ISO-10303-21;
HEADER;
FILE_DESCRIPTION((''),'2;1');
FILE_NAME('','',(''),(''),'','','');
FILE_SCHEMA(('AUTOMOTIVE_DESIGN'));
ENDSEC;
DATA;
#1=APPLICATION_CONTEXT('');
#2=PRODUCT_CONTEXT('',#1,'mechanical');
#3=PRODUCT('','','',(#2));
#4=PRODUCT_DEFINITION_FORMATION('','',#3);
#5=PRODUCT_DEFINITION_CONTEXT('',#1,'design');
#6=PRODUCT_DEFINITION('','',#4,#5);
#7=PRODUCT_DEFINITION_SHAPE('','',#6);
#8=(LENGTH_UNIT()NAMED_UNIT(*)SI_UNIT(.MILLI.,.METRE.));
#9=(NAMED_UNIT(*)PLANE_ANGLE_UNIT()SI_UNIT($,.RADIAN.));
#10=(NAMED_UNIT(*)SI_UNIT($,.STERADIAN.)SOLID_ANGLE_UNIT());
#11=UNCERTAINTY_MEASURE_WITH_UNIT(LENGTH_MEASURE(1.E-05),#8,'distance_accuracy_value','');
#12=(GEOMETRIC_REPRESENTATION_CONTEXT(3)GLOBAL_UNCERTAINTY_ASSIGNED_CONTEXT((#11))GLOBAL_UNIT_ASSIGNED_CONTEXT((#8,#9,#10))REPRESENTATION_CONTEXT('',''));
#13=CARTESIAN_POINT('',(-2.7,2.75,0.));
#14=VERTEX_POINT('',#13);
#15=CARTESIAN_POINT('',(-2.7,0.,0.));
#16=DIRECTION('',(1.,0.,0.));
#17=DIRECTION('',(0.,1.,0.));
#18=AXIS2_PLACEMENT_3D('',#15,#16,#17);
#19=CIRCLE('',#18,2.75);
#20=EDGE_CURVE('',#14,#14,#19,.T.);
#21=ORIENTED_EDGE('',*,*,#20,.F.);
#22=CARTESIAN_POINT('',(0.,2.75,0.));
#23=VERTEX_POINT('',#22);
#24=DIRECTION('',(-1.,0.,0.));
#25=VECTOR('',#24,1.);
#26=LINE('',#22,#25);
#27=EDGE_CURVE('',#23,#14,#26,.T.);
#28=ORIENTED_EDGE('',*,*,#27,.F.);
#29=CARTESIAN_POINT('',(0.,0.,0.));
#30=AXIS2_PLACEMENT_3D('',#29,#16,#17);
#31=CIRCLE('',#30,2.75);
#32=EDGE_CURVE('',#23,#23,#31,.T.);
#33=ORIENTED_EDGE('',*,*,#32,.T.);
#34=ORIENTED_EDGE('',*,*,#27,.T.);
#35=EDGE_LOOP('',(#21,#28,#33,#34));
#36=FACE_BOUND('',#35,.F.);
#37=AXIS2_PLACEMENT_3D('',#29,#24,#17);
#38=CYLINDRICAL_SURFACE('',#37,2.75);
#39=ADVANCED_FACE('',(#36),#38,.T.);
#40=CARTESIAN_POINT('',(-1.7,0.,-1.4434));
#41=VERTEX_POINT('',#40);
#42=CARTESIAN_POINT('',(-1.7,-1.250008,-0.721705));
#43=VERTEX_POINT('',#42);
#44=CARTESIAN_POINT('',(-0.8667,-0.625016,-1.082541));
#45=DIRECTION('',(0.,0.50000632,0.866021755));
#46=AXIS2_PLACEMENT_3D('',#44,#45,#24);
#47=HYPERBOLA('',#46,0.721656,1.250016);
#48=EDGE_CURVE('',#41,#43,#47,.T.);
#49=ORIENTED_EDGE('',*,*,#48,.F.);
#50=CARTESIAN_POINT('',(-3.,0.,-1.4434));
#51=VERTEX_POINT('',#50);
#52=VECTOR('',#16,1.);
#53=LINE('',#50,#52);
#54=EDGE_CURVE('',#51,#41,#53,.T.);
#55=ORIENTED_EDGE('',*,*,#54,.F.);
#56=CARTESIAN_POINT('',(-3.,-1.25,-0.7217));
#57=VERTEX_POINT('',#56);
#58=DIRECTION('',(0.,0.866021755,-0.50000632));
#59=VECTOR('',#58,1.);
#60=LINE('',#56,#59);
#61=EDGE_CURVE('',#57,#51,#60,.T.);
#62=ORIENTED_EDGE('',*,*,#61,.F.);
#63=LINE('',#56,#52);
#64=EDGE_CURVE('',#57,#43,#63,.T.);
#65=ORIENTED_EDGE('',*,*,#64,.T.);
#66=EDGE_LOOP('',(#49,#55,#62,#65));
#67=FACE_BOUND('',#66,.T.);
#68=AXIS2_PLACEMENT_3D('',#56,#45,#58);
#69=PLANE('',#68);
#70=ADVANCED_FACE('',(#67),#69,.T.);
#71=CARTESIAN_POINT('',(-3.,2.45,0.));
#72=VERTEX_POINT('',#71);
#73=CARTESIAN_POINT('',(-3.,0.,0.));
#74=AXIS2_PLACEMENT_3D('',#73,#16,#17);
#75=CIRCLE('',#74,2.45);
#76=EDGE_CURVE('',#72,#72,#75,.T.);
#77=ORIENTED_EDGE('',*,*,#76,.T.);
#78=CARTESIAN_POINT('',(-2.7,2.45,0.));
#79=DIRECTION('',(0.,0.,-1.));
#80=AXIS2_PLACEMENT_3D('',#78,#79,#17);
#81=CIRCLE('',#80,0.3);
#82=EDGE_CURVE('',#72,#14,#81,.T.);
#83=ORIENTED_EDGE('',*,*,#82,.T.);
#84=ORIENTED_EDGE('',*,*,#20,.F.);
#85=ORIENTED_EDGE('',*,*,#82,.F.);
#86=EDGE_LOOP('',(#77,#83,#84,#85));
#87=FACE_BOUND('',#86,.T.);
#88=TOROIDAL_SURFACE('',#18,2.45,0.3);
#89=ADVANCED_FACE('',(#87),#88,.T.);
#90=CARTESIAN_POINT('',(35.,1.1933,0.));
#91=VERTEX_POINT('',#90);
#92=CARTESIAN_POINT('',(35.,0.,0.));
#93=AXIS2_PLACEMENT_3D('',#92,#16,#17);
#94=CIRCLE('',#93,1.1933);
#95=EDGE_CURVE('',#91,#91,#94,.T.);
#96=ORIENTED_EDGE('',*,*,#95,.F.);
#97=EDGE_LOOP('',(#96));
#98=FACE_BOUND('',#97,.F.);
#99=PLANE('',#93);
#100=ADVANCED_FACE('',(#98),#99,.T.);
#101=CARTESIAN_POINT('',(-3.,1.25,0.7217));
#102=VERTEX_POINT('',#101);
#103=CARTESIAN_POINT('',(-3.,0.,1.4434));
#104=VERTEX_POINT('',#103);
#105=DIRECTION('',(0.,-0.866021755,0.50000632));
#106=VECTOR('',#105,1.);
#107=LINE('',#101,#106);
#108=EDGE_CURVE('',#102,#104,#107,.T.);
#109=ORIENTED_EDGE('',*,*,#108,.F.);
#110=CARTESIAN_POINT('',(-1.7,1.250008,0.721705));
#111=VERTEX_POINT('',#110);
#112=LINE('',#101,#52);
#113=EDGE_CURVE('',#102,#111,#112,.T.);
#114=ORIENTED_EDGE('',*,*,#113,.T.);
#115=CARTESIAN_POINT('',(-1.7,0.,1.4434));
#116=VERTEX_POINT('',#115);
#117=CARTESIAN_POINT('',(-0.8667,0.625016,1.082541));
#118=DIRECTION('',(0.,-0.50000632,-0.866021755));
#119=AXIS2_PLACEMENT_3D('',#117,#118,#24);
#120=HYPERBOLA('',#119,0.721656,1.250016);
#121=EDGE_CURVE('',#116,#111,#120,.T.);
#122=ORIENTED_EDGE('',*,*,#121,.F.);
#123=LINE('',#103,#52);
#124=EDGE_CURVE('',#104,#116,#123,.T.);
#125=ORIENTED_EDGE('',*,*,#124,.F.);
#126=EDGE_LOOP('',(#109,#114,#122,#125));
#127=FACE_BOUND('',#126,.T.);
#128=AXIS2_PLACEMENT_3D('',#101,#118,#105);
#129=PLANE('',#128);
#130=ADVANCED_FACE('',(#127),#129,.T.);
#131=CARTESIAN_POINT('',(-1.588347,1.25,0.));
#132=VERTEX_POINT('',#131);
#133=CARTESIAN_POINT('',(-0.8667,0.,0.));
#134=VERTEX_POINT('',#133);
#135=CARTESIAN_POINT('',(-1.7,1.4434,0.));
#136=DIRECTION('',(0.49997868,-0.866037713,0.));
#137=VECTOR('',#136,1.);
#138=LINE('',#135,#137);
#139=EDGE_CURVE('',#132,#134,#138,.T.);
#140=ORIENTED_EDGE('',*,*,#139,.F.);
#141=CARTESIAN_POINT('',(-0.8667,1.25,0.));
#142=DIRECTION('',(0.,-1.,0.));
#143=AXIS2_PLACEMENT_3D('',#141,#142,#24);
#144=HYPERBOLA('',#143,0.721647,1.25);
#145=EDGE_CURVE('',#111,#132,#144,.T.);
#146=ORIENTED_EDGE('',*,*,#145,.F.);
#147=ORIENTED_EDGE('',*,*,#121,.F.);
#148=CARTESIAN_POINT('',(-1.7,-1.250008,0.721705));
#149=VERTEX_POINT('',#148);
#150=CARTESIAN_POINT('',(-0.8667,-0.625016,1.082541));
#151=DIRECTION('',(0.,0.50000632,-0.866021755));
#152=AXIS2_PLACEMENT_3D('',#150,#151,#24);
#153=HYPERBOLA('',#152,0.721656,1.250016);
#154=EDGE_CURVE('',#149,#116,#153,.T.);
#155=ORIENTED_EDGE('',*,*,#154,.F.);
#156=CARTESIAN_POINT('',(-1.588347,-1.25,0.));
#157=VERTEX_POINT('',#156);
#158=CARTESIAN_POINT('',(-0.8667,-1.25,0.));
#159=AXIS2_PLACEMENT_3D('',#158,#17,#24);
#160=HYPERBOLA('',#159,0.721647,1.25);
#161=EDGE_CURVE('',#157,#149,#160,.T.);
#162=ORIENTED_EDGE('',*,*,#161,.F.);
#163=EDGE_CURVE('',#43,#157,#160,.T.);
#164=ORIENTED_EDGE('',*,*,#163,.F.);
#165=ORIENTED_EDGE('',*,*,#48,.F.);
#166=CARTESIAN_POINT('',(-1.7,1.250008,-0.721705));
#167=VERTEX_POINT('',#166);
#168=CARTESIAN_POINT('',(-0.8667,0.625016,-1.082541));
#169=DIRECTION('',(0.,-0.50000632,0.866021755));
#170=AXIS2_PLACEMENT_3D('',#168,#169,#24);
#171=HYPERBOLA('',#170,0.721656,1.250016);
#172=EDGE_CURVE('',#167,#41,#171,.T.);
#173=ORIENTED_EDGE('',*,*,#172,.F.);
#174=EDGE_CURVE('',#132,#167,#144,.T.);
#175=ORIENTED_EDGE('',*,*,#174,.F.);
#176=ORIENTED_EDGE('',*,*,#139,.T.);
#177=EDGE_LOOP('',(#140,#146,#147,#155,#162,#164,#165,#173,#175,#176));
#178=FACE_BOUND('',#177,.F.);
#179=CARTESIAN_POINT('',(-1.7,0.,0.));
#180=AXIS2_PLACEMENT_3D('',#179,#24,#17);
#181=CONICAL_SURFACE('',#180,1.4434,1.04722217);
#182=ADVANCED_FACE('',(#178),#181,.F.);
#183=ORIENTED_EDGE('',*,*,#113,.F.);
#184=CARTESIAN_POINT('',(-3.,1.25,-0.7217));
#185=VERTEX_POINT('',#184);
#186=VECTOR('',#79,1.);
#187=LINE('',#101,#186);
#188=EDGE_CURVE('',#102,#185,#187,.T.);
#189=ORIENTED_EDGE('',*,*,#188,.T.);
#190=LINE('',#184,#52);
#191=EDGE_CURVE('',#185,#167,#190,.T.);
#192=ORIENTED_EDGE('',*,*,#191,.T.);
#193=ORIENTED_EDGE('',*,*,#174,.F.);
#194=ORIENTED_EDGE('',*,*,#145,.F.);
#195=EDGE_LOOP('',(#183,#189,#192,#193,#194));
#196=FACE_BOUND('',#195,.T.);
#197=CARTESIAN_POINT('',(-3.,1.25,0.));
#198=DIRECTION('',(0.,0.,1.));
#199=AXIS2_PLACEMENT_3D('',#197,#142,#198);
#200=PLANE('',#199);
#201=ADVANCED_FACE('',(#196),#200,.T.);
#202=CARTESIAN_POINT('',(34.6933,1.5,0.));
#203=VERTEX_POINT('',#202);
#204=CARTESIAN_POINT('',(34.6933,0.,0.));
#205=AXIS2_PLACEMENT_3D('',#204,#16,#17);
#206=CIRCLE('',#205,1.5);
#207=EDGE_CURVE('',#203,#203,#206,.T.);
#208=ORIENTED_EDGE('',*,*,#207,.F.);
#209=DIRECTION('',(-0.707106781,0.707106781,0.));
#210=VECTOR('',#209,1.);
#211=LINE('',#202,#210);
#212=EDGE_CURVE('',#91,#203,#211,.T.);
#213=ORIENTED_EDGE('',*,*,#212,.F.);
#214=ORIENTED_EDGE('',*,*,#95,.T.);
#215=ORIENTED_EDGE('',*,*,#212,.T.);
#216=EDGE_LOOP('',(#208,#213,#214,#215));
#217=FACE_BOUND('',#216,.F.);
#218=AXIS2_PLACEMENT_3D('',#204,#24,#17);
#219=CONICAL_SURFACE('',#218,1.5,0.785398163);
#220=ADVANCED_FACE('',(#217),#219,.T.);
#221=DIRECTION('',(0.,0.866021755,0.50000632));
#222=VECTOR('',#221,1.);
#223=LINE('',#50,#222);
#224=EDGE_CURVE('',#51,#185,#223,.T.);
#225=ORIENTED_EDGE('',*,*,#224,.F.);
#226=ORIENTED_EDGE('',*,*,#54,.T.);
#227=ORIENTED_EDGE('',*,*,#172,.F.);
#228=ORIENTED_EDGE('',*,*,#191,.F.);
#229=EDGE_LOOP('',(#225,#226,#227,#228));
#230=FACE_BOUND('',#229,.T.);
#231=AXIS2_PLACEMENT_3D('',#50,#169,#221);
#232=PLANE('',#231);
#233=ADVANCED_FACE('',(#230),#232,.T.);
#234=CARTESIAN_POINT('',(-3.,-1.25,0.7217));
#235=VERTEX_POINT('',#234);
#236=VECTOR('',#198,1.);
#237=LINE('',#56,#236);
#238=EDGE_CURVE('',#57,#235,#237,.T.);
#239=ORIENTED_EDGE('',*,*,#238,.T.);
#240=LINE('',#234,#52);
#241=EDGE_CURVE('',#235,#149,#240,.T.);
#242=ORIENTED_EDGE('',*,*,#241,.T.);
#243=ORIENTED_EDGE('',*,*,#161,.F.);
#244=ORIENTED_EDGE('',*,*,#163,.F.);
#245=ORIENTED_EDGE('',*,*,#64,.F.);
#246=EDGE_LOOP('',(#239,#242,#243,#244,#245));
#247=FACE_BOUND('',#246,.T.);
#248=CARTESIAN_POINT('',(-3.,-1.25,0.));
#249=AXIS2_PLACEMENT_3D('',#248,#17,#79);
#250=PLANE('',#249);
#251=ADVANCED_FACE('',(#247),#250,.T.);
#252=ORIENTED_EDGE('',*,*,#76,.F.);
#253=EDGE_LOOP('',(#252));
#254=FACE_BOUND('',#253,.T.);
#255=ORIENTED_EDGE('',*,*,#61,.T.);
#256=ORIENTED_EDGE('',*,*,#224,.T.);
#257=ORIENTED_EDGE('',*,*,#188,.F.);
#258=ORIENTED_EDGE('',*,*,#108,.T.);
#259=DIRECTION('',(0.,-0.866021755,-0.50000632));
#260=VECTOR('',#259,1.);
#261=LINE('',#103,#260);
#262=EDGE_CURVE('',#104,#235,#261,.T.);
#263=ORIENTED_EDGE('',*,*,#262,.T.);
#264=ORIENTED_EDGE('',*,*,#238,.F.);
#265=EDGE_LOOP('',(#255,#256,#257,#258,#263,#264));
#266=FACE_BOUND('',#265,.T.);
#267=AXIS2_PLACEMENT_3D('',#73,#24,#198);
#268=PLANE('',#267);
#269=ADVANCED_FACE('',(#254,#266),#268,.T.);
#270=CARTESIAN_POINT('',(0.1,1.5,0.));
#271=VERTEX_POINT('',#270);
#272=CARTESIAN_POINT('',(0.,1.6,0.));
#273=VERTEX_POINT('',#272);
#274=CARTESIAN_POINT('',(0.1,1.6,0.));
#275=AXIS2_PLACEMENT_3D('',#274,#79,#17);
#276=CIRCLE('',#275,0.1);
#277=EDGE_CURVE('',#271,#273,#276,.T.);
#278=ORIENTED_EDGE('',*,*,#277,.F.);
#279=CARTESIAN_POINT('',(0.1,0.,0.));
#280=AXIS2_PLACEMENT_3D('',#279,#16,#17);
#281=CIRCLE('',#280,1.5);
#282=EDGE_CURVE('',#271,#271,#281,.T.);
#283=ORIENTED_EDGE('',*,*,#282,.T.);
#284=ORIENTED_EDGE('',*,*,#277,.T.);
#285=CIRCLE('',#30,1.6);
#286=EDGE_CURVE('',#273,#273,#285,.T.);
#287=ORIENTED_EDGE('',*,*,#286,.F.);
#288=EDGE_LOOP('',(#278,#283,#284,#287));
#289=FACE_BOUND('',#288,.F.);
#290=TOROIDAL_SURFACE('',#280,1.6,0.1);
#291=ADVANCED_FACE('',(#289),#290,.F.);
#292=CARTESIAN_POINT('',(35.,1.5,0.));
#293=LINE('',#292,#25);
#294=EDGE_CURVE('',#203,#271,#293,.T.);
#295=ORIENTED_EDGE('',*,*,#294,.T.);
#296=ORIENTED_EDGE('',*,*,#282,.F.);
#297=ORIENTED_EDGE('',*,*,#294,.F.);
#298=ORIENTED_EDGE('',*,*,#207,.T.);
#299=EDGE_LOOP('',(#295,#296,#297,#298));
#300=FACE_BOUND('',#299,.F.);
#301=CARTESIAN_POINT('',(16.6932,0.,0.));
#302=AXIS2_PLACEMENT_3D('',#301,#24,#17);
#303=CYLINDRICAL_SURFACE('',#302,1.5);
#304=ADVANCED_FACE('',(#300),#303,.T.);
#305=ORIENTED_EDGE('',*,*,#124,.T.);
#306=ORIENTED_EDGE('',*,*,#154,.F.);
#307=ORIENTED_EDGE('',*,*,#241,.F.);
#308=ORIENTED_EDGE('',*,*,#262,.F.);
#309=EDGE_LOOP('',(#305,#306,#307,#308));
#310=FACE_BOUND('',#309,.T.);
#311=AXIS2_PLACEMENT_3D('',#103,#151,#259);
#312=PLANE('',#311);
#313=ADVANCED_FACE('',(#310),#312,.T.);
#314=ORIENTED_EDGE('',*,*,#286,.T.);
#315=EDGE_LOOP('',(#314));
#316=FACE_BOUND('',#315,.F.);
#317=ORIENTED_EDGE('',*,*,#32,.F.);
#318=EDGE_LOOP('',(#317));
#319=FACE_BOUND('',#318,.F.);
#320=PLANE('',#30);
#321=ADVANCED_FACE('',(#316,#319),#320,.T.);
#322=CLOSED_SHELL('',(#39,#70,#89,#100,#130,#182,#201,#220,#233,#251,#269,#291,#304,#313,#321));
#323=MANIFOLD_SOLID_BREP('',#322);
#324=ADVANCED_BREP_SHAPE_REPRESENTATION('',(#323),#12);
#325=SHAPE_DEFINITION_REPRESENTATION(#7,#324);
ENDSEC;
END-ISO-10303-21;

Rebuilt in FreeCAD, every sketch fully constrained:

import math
import FreeCAD as App
import Part
import Sketcher
from FreeCAD import Vector
Q = App.Units.Quantity


def edges_at(feature, points):
    """Names of the edges that pass closest to the given points."""
    edges = feature.Shape.Edges
    near = lambda p: min(range(len(edges)), key=lambda i: edges[i].distToShape(Part.Vertex(*p))[0])
    return sorted({f"Edge{near(p) + 1}" for p in points})

doc = App.newDocument("Part")
body = doc.addObject("PartDesign::Body", "Body")

sketch1 = body.newObject("Sketcher::SketchObject", "Sketch")
sketch1.AttachmentSupport = (doc.getObject("XY_Plane"), [""])
sketch1.MapMode = "FlatFace"
sketch1.addGeometry([
    Part.LineSegment(Vector(-1.7, 1.4434, 0), Vector(-0.8667, 0, 0)),
    Part.LineSegment(Vector(-0.8667, 0, 0), Vector(35, 0, 0)),
    Part.LineSegment(Vector(35, 0, 0), Vector(35, 1.5, 0)),
    Part.LineSegment(Vector(35, 1.5, 0), Vector(0, 1.5, 0)),
    Part.LineSegment(Vector(0, 1.5, 0), Vector(0, 2.75, 0)),
    Part.LineSegment(Vector(0, 2.75, 0), Vector(-3, 2.75, 0)),
    Part.LineSegment(Vector(-3, 2.75, 0), Vector(-3, 1.4434, 0)),
    Part.LineSegment(Vector(-3, 1.4434, 0), Vector(-1.7, 1.4434, 0)),
], False)
sketch1.addConstraint([
    Sketcher.Constraint("Coincident", 0, 2, 1, 1),
    Sketcher.Constraint("Coincident", 1, 2, 2, 1),
    Sketcher.Constraint("Coincident", 2, 2, 3, 1),
    Sketcher.Constraint("Coincident", 3, 2, 4, 1),
    Sketcher.Constraint("Coincident", 4, 2, 5, 1),
    Sketcher.Constraint("Coincident", 5, 2, 6, 1),
    Sketcher.Constraint("Coincident", 6, 2, 7, 1),
    Sketcher.Constraint("Coincident", 7, 2, 0, 1),
    Sketcher.Constraint("Horizontal", 1),
    Sketcher.Constraint("Vertical", 2),
    Sketcher.Constraint("Horizontal", 3),
    Sketcher.Constraint("Vertical", 4),
    Sketcher.Constraint("Horizontal", 5),
    Sketcher.Constraint("Vertical", 6),
    Sketcher.Constraint("Horizontal", 7),
    Sketcher.Constraint("PointOnObject", 0, 2, -1),
    Sketcher.Constraint("PointOnObject", 3, 2, -2),
    Sketcher.Constraint("DistanceX", 3, 2, 3, 1, Q("35 mm")),
    Sketcher.Constraint("DistanceX", 5, 2, 5, 1, Q("3 mm")),
    Sketcher.Constraint("DistanceX", 7, 1, 7, 2, Q("1.3 mm")),
    Sketcher.Constraint("DistanceY", 2, 1, 2, 2, Q("1.5 mm")),
    Sketcher.Constraint("DistanceY", 4, 1, 4, 2, Q("1.25 mm")),
    Sketcher.Constraint("DistanceX", 1, 1, 1, 2, Q("35.8667 mm")),
    Sketcher.Constraint("DistanceY", 6, 2, 6, 1, Q("1.3066 mm")),
])
revolution = body.newObject("PartDesign::Revolution", "Revolution")
revolution.Profile = sketch1
revolution.ReferenceAxis = (sketch1, ["H_Axis"])
revolution.Angle = 360

sketch2 = body.newObject("Sketcher::SketchObject", "Sketch001")
sketch2.AttachmentSupport = (doc.getObject("YZ_Plane"), [""])
sketch2.MapMode = "FlatFace"
sketch2.AttachmentOffset = App.Placement(Vector(0, 0, -3), App.Rotation())
sketch2.addGeometry([
    Part.LineSegment(Vector(1.25, 0.7217, 0), Vector(0, 1.4434, 0)),
    Part.ArcOfCircle(Part.Circle(Vector(0, 0, 0), Vector(0, 0, 1), 1.4434), math.radians(30.000418), math.radians(90)),
    Part.ArcOfCircle(Part.Circle(Vector(0, 0, 0), Vector(0, 0, 1), 1.4434), math.radians(90), math.radians(149.999582)),
    Part.LineSegment(Vector(0, 1.4434, 0), Vector(-1.25, 0.7217, 0)),
    Part.ArcOfCircle(Part.Circle(Vector(0, 0, 0), Vector(0, 0, 1), 1.4434), math.radians(-30.000418), math.radians(30.000418)),
    Part.LineSegment(Vector(1.25, 0.7217, 0), Vector(1.25, -0.7217, 0)),
    Part.LineSegment(Vector(-1.25, 0.7217, 0), Vector(-1.25, -0.7217, 0)),
    Part.ArcOfCircle(Part.Circle(Vector(0, 0, 0), Vector(0, 0, 1), 1.4434), math.radians(149.999582), math.radians(210.000418)),
    Part.LineSegment(Vector(-1.25, -0.7217, 0), Vector(0, -1.4434, 0)),
    Part.ArcOfCircle(Part.Circle(Vector(0, 0, 0), Vector(0, 0, 1), 1.4434), math.radians(-149.999582), math.radians(-90)),
    Part.ArcOfCircle(Part.Circle(Vector(0, 0, 0), Vector(0, 0, 1), 1.4434), math.radians(-90), math.radians(-30.000418)),
    Part.LineSegment(Vector(0, -1.4434, 0), Vector(1.25, -0.7217, 0)),
], False)
sketch2.addConstraint([
    Sketcher.Constraint("Coincident", 0, 1, 1, 1),
    Sketcher.Constraint("Coincident", 1, 2, 0, 2),
    Sketcher.Constraint("Coincident", 2, 1, 3, 1),
    Sketcher.Constraint("Coincident", 3, 2, 2, 2),
    Sketcher.Constraint("Coincident", 4, 1, 5, 2),
    Sketcher.Constraint("Coincident", 5, 1, 4, 2),
    Sketcher.Constraint("Coincident", 6, 1, 7, 1),
    Sketcher.Constraint("Coincident", 7, 2, 6, 2),
    Sketcher.Constraint("Coincident", 8, 1, 9, 1),
    Sketcher.Constraint("Coincident", 9, 2, 8, 2),
    Sketcher.Constraint("Coincident", 10, 1, 11, 1),
    Sketcher.Constraint("Coincident", 11, 2, 10, 2),
    Sketcher.Constraint("Vertical", 5),
    Sketcher.Constraint("Vertical", 6),
    Sketcher.Constraint("Coincident", 1, 3, -1, 1),
    Sketcher.Constraint("Coincident", 2, 3, -1, 1),
    Sketcher.Constraint("Coincident", 4, 3, -1, 1),
    Sketcher.Constraint("Coincident", 7, 3, -1, 1),
    Sketcher.Constraint("Coincident", 9, 3, -1, 1),
    Sketcher.Constraint("Coincident", 10, 3, -1, 1),
    Sketcher.Constraint("Coincident", 2, 1, 1, 2),
    Sketcher.Constraint("Coincident", 5, 1, 0, 1),
    Sketcher.Constraint("Coincident", 6, 1, 3, 2),
    Sketcher.Constraint("Coincident", 8, 1, 7, 2),
    Sketcher.Constraint("Coincident", 10, 1, 9, 2),
    Sketcher.Constraint("PointOnObject", 1, 2, -2),
    Sketcher.Constraint("PointOnObject", 9, 2, -2),
    Sketcher.Constraint("Parallel", 0, 8),
    Sketcher.Constraint("Parallel", 3, 11),
    Sketcher.Constraint("Angle", 0, Q("149.9996 deg")),
    Sketcher.Constraint("Radius", 1, Q("1.4434 mm")),
])
pad1 = body.newObject("PartDesign::Pad", "Pad")
pad1.Profile = sketch2
pad1.Length = 1.4117
doc.recompute()

fillet = body.newObject("PartDesign::Fillet", "Fillet")
fillet.Base = (pad1, edges_at(pad1, [(-3, -2.75, 0)]))
fillet.Radius = 0.3
doc.recompute()

chamfer = body.newObject("PartDesign::Chamfer", "Chamfer")
chamfer.Base = (fillet, edges_at(fillet, [(35, -1.5, 0)]))
chamfer.ChamferType = "Two distances"
chamfer.Size = 0.3067
chamfer.Size2 = 0.3067
doc.recompute()

fillet2 = body.newObject("PartDesign::Fillet", "Fillet001")
fillet2.Base = (chamfer, edges_at(chamfer, [(0, -1.5, 0)]))
fillet2.Radius = 0.1

doc.recompute()
